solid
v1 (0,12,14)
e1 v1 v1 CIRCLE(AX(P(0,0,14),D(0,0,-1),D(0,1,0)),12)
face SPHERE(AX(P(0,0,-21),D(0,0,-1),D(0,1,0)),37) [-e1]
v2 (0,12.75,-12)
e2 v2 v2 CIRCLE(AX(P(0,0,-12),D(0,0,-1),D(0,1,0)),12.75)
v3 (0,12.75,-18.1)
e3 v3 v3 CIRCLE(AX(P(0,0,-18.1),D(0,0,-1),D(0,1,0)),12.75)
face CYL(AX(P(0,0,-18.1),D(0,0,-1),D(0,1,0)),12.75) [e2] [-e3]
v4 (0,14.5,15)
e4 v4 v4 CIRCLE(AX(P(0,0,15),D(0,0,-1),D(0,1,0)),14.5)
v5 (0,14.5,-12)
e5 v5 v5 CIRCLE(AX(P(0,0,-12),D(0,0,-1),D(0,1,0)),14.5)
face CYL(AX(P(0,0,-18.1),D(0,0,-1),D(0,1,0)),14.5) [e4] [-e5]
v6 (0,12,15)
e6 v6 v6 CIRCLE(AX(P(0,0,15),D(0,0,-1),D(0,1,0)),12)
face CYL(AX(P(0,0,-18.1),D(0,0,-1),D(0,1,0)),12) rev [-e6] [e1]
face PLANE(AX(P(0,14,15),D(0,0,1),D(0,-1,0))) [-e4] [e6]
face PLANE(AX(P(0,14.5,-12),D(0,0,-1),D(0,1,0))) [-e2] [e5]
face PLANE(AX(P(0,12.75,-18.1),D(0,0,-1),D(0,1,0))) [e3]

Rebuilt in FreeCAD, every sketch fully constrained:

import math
import FreeCAD as App
import Part
import Sketcher
Q = App.Units.Quantity

doc = App.newDocument("Part")
body = doc.addObject("PartDesign::Body", "Body")

sketch1 = body.newObject("Sketcher::SketchObject", "Sketch")
sketch1.AttachmentSupport = (doc.getObject("YZ_Plane"), [""])
sketch1.MapMode = "FlatFace"
sketch1.addGeometry([
    Part.LineSegment(App.Vector(12, 15, 0), App.Vector(12, 14, 0)),
    Part.ArcOfCircle(Part.Circle(App.Vector(0, -21, 0), App.Vector(0, 0, 1), 37), math.radians(71.08), math.radians(90)),
    Part.LineSegment(App.Vector(0, 16, 0), App.Vector(0, -18.1, 0)),
    Part.LineSegment(App.Vector(0, -18.1, 0), App.Vector(12.8, -18.1, 0)),
    Part.LineSegment(App.Vector(12.8, -18.1, 0), App.Vector(12.8, -12, 0)),
    Part.LineSegment(App.Vector(12.8, -12, 0), App.Vector(14.5, -12, 0)),
    Part.LineSegment(App.Vector(14.5, -12, 0), App.Vector(14.5, 15, 0)),
    Part.LineSegment(App.Vector(14.5, 15, 0), App.Vector(12, 15, 0)),
], False)
sketch1.addConstraint([
    Sketcher.Constraint("Coincident", 0, 2, 1, 1),
    Sketcher.Constraint("Coincident", 1, 2, 2, 1),
    Sketcher.Constraint("Coincident", 2, 2, 3, 1),
    Sketcher.Constraint("Coincident", 3, 2, 4, 1),
    Sketcher.Constraint("Coincident", 4, 2, 5, 1),
    Sketcher.Constraint("Coincident", 5, 2, 6, 1),
    Sketcher.Constraint("Coincident", 6, 2, 7, 1),
    Sketcher.Constraint("Coincident", 7, 2, 0, 1),
    Sketcher.Constraint("Vertical", 0),
    Sketcher.Constraint("Vertical", 2),
    Sketcher.Constraint("Horizontal", 3),
    Sketcher.Constraint("Vertical", 4),
    Sketcher.Constraint("Horizontal", 5),
    Sketcher.Constraint("Vertical", 6),
    Sketcher.Constraint("Horizontal", 7),
    Sketcher.Constraint("PointOnObject", 1, 3, -2),
    Sketcher.Constraint("PointOnObject", 1, 2, -2),
    Sketcher.Constraint("Radius", 1, Q("37 mm")),
    Sketcher.Constraint("DistanceY", 0, 2, 0, 1, Q("1 mm")),
    Sketcher.Constraint("DistanceY", 6, 1, 6, 2, Q("27 mm")),
    Sketcher.Constraint("DistanceX", 7, 2, 7, 1, Q("2.5 mm")),
    Sketcher.Constraint("DistanceY", 2, 2, 2, 1, Q("34.1 mm")),
    Sketcher.Constraint("DistanceY", 4, 1, 4, 2, Q("6.1 mm")),
    Sketcher.Constraint("DistanceY", 1, 3, -1, 1, Q("21 mm")),
    Sketcher.Constraint("DistanceX", 3, 1, 3, 2, Q("12.75 mm")),
])
revolution = body.newObject("PartDesign::Revolution", "Revolution")
revolution.Profile = sketch1
revolution.ReferenceAxis = (sketch1, ["V_Axis"])
revolution.Angle = 360

doc.recompute()
